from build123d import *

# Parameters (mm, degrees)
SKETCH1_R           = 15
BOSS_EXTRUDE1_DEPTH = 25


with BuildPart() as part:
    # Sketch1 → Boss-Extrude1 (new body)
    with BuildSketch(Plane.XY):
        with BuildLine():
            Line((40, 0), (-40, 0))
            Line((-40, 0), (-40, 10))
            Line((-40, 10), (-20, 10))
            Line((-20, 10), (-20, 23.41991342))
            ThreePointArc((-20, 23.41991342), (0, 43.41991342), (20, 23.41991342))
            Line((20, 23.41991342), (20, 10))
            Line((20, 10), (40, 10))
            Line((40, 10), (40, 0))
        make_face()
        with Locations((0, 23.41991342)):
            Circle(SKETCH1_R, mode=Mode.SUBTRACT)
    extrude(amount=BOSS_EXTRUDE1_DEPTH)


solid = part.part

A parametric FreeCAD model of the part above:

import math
import FreeCAD as App
import Part
import Sketcher
Q = App.Units.Quantity

doc = App.newDocument("Part")
body = doc.addObject("PartDesign::Body", "Body")

# Sketch on XY plane
sketch1 = doc.addObject("Sketcher::SketchObject", "Sketch")
body.addObject(sketch1)
sketch1.AttachmentSupport = (doc.XY_Plane, [""])
sketch1.MapMode = "FlatFace"
sketch1.addGeometry([
    Part.LineSegment(App.Vector(-40, 0, 0), App.Vector(40, 0, 0)),  # 0
    Part.LineSegment(App.Vector(40, 0, 0), App.Vector(40, 10, 0)),  # 1
    Part.LineSegment(App.Vector(40, 10, 0), App.Vector(20, 10, 0)),  # 2
    Part.LineSegment(App.Vector(20, 10, 0), App.Vector(20, 23.419913, 0)),  # 3
    Part.ArcOfCircle(Part.Circle(App.Vector(0, 23.419913, 0), App.Vector(0, 0, 1), 20), math.radians(0), math.radians(180)),  # 4
    Part.LineSegment(App.Vector(-20, 23.419913, 0), App.Vector(-20, 10, 0)),  # 5
    Part.LineSegment(App.Vector(-20, 10, 0), App.Vector(-40, 10, 0)),  # 6
    Part.LineSegment(App.Vector(-40, 10, 0), App.Vector(-40, 0, 0)),  # 7
    Part.Circle(App.Vector(0, 23.419913, 0), App.Vector(0, 0, 1), 15),  # 8
], False)
sketch1.addConstraint([
    Sketcher.Constraint("Coincident", 0, 2, 1, 1),
    Sketcher.Constraint("Coincident", 1, 2, 2, 1),
    Sketcher.Constraint("Coincident", 2, 2, 3, 1),
    Sketcher.Constraint("Tangent", 3, 2, 4, 1),
    Sketcher.Constraint("Tangent", 4, 2, 5, 1),
    Sketcher.Constraint("Coincident", 5, 2, 6, 1),
    Sketcher.Constraint("Coincident", 6, 2, 7, 1),
    Sketcher.Constraint("Coincident", 7, 2, 0, 1),
    Sketcher.Constraint("Horizontal", 0),
    Sketcher.Constraint("Vertical", 1),
    Sketcher.Constraint("Horizontal", 2),
    Sketcher.Constraint("Vertical", 3),
    Sketcher.Constraint("Vertical", 5),
    Sketcher.Constraint("Horizontal", 6),
    Sketcher.Constraint("Vertical", 7),
    Sketcher.Constraint("Coincident", 8, 3, 4, 3),
    Sketcher.Constraint("Symmetric", 0, 2, 7, 2, -1, 1),
    Sketcher.Constraint("Symmetric", 2, 2, 5, 2, -2),
    Sketcher.Constraint("Diameter", 8, Q("30 mm")),
    Sketcher.Constraint("Radius", 4, Q("20 mm")),
    Sketcher.Constraint("DistanceX", 0, 1, 0, 2, Q("80 mm")),
    Sketcher.Constraint("DistanceY", 1, 1, 1, 2, Q("10 mm")),
    Sketcher.Constraint("DistanceY", 3, 1, 3, 2, Q("13.419913 mm")),
])
pad1 = doc.addObject("PartDesign::Pad", "Pad")
body.addObject(pad1)
pad1.Profile = sketch1
pad1.Length = 25

doc.recompute()
